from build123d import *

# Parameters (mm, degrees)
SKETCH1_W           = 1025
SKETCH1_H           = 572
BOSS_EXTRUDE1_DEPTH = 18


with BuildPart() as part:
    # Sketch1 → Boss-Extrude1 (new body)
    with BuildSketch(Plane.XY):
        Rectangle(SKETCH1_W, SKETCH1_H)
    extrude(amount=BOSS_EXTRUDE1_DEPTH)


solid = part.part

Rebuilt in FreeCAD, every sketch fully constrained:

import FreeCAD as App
import Part
import Sketcher
Q = App.Units.Quantity

doc = App.newDocument("Part")
params = doc.addObject("Spreadsheet::Sheet", "Params")
for row, (alias, value) in enumerate([
    ("sketch1_width", "1025 mm"),
    ("sketch1_height", "572 mm"),
    ("pad1_length", "18 mm"),
], start=1):
    params.set(f"A{row}", alias)
    params.set(f"B{row}", "=" + value)
    params.setAlias(f"B{row}", alias)

body = doc.addObject("PartDesign::Body", "Body")

# Sketch on XY plane
sketch1 = body.newObject("Sketcher::SketchObject", "Sketch")
sketch1.AttachmentSupport = (doc.getObject("XY_Plane"), [""])
sketch1.MapMode = "FlatFace"
sketch1.addGeometry([
    Part.LineSegment(App.Vector(-512, 286, 0), App.Vector(-512, -286, 0)),
    Part.LineSegment(App.Vector(-512, -286, 0), App.Vector(512, -286, 0)),
    Part.LineSegment(App.Vector(512, -286, 0), App.Vector(512, 286, 0)),
    Part.LineSegment(App.Vector(512, 286, 0), App.Vector(-512, 286, 0)),
], False)
sketch1.addConstraint([
    Sketcher.Constraint("Coincident", 0, 2, 1, 1),
    Sketcher.Constraint("Coincident", 1, 2, 2, 1),
    Sketcher.Constraint("Coincident", 2, 2, 3, 1),
    Sketcher.Constraint("Coincident", 3, 2, 0, 1),
    Sketcher.Constraint("Vertical", 0),
    Sketcher.Constraint("Horizontal", 1),
    Sketcher.Constraint("Vertical", 2),
    Sketcher.Constraint("Horizontal", 3),
    Sketcher.Constraint("Symmetric", 0, 2, 2, 2, -1, 1),
    Sketcher.Constraint("DistanceX", 1, 1, 1, 2, Q("1025 mm")),
    Sketcher.Constraint("DistanceY", 0, 2, 0, 1, Q("572 mm")),
])
sketch1.setExpression("Constraints[9]", "Params.sketch1_width")
sketch1.setExpression("Constraints[10]", "Params.sketch1_height")
pad1 = body.newObject("PartDesign::Pad", "Pad")
pad1.Profile = sketch1
pad1.setExpression("Length", "Params.pad1_length")

doc.recompute()
